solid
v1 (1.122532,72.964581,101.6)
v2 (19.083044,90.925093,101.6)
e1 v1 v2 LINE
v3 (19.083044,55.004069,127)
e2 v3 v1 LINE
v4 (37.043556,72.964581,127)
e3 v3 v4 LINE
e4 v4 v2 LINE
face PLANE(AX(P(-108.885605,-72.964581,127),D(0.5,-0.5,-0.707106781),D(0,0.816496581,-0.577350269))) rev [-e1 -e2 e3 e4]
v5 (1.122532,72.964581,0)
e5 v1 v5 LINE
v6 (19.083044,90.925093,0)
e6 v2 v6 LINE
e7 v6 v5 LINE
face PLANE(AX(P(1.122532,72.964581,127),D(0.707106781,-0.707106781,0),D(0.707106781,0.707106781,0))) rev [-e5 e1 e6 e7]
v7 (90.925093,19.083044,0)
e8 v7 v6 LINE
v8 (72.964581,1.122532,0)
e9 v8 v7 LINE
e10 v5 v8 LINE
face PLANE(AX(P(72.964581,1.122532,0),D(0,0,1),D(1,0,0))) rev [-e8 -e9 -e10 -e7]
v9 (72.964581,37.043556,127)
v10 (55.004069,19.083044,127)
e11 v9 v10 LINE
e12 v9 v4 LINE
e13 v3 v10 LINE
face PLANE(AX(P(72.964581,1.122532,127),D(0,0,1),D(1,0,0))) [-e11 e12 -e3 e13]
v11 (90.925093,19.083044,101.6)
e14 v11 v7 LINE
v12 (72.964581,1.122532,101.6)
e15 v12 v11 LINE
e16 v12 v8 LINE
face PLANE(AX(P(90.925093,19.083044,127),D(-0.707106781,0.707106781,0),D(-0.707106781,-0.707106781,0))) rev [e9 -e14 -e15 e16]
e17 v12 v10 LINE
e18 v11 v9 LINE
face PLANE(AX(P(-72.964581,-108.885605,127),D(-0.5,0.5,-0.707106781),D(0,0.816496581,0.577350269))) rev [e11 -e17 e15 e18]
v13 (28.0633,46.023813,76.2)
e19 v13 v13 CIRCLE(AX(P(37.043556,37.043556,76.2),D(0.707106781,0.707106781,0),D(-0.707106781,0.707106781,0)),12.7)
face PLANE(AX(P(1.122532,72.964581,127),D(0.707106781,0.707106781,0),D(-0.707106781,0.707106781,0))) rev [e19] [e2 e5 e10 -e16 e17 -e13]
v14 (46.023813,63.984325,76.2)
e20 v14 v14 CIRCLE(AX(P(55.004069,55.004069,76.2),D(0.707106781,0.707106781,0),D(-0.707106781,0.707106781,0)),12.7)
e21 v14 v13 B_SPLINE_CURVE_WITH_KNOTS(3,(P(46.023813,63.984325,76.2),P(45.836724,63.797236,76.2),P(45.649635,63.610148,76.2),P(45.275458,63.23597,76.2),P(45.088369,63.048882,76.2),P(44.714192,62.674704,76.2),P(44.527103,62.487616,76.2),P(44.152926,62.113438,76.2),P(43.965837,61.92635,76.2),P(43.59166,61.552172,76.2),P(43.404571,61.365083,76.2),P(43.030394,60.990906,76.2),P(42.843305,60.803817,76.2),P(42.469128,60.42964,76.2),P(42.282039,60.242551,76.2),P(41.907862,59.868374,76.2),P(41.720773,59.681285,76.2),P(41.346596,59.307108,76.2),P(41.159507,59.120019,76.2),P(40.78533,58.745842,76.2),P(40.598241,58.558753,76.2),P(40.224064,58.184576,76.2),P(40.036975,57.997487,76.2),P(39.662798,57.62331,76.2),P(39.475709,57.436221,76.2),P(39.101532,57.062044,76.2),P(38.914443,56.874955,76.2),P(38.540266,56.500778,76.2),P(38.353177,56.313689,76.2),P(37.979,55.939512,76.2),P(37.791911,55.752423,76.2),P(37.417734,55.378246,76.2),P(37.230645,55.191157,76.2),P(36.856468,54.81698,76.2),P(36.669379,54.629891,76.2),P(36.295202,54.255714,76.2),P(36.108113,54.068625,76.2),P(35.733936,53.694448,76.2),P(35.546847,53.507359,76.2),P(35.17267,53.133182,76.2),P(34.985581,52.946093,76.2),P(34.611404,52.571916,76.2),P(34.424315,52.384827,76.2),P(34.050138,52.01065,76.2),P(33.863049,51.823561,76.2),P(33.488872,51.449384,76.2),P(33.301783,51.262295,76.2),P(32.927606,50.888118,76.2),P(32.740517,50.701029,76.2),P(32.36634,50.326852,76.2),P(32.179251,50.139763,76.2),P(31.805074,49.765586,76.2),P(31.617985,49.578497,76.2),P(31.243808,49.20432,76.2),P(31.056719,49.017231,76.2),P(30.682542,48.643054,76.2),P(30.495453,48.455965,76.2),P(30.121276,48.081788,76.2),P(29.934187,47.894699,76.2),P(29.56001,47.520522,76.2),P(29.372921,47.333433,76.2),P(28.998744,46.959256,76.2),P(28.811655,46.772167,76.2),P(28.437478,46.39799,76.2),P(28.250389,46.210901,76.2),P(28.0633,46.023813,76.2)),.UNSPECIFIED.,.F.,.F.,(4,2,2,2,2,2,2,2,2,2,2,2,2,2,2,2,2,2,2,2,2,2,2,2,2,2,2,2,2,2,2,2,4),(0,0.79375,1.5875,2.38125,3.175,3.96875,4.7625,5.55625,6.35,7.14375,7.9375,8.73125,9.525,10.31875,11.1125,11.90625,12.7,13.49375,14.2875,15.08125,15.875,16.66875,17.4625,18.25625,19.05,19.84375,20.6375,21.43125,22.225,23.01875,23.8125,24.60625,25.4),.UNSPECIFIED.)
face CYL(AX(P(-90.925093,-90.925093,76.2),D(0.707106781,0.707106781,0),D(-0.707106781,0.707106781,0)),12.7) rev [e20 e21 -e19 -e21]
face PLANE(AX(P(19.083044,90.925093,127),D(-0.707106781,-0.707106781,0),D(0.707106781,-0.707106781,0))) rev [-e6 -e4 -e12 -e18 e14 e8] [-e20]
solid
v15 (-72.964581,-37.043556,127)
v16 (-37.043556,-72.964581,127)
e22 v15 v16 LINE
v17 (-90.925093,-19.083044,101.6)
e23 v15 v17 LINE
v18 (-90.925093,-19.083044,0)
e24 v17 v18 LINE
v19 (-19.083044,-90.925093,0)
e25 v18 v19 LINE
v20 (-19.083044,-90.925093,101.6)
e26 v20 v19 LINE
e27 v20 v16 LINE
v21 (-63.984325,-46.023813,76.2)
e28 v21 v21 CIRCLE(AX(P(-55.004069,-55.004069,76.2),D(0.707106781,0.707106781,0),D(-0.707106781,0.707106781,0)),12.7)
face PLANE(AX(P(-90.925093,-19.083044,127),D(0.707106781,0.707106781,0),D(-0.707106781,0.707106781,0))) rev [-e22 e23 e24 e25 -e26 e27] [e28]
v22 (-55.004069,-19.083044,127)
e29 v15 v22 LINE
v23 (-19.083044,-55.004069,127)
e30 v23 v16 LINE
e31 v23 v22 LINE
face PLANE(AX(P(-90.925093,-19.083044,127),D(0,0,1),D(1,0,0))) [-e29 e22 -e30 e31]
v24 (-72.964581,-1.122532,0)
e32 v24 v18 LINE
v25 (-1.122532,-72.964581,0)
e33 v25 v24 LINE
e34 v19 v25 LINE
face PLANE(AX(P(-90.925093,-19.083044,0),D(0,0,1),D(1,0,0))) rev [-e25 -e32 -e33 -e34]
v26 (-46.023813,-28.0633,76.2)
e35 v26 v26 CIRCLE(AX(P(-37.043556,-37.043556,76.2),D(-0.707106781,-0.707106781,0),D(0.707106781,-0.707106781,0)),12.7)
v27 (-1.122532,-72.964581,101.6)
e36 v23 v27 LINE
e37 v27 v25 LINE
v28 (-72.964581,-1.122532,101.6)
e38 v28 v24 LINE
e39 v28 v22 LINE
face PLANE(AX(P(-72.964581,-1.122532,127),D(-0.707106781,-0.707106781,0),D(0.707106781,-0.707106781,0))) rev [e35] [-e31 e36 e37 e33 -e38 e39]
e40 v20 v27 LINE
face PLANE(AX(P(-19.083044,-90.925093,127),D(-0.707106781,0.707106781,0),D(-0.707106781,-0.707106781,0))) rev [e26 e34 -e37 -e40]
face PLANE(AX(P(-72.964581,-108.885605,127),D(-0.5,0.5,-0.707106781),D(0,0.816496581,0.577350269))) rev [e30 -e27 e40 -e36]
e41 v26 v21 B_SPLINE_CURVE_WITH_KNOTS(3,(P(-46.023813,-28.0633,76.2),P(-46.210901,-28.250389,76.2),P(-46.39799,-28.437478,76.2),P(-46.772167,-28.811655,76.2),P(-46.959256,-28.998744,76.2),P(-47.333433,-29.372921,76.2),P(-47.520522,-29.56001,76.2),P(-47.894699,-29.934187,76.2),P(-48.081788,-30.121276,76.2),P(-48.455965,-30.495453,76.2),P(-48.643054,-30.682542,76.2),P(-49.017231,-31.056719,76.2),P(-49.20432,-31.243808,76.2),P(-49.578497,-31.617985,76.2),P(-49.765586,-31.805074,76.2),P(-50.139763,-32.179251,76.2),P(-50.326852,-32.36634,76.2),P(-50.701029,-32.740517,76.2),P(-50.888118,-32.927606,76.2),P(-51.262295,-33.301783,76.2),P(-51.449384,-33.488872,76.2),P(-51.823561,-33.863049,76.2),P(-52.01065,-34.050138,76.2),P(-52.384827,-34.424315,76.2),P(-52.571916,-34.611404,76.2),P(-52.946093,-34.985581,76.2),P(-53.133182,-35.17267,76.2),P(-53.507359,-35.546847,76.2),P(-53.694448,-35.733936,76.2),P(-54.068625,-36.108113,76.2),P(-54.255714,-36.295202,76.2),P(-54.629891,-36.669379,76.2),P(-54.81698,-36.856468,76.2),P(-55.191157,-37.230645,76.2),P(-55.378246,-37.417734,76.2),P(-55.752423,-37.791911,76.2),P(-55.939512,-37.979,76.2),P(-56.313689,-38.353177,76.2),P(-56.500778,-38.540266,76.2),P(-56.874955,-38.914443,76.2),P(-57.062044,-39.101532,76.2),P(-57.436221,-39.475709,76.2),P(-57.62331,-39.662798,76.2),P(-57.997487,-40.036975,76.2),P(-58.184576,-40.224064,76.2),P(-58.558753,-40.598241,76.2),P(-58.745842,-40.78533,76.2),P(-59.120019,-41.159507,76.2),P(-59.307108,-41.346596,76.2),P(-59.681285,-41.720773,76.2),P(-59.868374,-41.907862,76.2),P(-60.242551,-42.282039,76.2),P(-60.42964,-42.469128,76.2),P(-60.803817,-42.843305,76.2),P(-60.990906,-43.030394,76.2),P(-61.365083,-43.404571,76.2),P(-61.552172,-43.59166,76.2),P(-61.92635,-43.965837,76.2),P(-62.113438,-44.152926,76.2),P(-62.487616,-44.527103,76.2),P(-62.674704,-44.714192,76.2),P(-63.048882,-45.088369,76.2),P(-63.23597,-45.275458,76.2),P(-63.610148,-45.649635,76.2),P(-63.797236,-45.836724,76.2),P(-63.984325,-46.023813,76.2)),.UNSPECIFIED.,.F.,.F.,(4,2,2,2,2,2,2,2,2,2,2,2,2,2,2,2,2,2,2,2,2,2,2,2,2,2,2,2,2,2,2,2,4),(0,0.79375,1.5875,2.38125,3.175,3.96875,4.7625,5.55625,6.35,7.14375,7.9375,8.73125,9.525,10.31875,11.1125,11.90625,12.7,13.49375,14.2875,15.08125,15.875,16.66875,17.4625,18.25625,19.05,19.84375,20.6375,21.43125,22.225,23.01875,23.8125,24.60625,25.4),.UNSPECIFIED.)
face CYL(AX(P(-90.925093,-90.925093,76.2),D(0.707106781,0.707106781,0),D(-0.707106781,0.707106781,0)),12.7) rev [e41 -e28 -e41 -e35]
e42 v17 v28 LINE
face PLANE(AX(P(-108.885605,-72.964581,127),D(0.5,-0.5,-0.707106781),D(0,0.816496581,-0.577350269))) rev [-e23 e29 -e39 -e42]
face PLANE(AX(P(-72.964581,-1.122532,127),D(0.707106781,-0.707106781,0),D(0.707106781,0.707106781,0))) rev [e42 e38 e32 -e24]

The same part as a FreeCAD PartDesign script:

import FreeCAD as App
import Part
import Sketcher
Q = App.Units.Quantity

doc = App.newDocument("Part")
body = doc.addObject("PartDesign::Body", "Body")

# Sketch on XY plane
sketch1 = doc.addObject("Sketcher::SketchObject", "Sketch")
body.addObject(sketch1)
sketch1.AttachmentSupport = (doc.XY_Plane, [""])
sketch1.MapMode = "FlatFace"
sketch1.addGeometry(Part.LineSegment(App.Vector(-1.122532, -72.964581, 0), App.Vector(-72.964581, -1.122532, 0)), False)
sketch1.addGeometry(Part.LineSegment(App.Vector(-72.964581, -1.122532, 0), App.Vector(-90.925093, -19.083044, 0)), False)
sketch1.addGeometry(Part.LineSegment(App.Vector(-90.925093, -19.083044, 0), App.Vector(-19.083044, -90.925093, 0)), False)
sketch1.addGeometry(Part.LineSegment(App.Vector(-19.083044, -90.925093, 0), App.Vector(-1.122532, -72.964581, 0)), False)
sketch1.addConstraint(Sketcher.Constraint("Coincident", 0, 2, 1, 1))
sketch1.addConstraint(Sketcher.Constraint("Coincident", 1, 2, 2, 1))
sketch1.addConstraint(Sketcher.Constraint("Coincident", 2, 2, 3, 1))
sketch1.addConstraint(Sketcher.Constraint("Coincident", 3, 2, 0, 1))
sketch1.addConstraint(Sketcher.Constraint("Perpendicular", 0, 1))
sketch1.addConstraint(Sketcher.Constraint("Perpendicular", 1, 2))
sketch1.addConstraint(Sketcher.Constraint("Perpendicular", 2, 3))
sketch1.addConstraint(Sketcher.Constraint("Distance", 0, Q("4 in")))
sketch1.addConstraint(Sketcher.Constraint("Distance", 1, Q("1 in")))
sketch1.addConstraint(Sketcher.Constraint("Angle", 0, Q("135 deg")))
sketch1.addConstraint(Sketcher.Constraint("DistanceX", 0, 2, -1, 1, Q("72.964581 mm")))
sketch1.addConstraint(Sketcher.Constraint("DistanceY", 3, 2, -1, 1, Q("72.964581 mm")))
pad1 = doc.addObject("PartDesign::Pad", "Pad")
body.addObject(pad1)
pad1.Profile = sketch1
pad1.Length = Q("5 in")
body2 = doc.addObject("PartDesign::Body", "Body001")

# Sketch on XY plane
sketch2 = doc.addObject("Sketcher::SketchObject", "Sketch001")
body2.addObject(sketch2)
sketch2.AttachmentSupport = (doc.getObject("XY_Plane001"), [""])
sketch2.MapMode = "FlatFace"
sketch2.addGeometry(Part.LineSegment(App.Vector(1.122532, 72.964581, 0), App.Vector(72.964581, 1.122532, 0)), False)
sketch2.addGeometry(Part.LineSegment(App.Vector(72.964581, 1.122532, 0), App.Vector(90.925093, 19.083044, 0)), False)
sketch2.addGeometry(Part.LineSegment(App.Vector(90.925093, 19.083044, 0), App.Vector(19.083044, 90.925093, 0)), False)
sketch2.addGeometry(Part.LineSegment(App.Vector(19.083044, 90.925093, 0), App.Vector(1.122532, 72.964581, 0)), False)
sketch2.addConstraint(Sketcher.Constraint("Coincident", 0, 2, 1, 1))
sketch2.addConstraint(Sketcher.Constraint("Coincident", 1, 2, 2, 1))
sketch2.addConstraint(Sketcher.Constraint("Coincident", 2, 2, 3, 1))
sketch2.addConstraint(Sketcher.Constraint("Coincident", 3, 2, 0, 1))
sketch2.addConstraint(Sketcher.Constraint("Perpendicular", 0, 1))
sketch2.addConstraint(Sketcher.Constraint("Perpendicular", 1, 2))
sketch2.addConstraint(Sketcher.Constraint("Perpendicular", 2, 3))
sketch2.addConstraint(Sketcher.Constraint("Distance", 0, Q("4 in")))
sketch2.addConstraint(Sketcher.Constraint("Distance", 1, Q("1 in")))
sketch2.addConstraint(Sketcher.Constraint("Angle", 0, Q("-45 deg")))
sketch2.addConstraint(Sketcher.Constraint("DistanceX", -1, 1, 0, 2, Q("72.964581 mm")))
sketch2.addConstraint(Sketcher.Constraint("DistanceY", -1, 1, 3, 2, Q("72.964581 mm")))
pad2 = doc.addObject("PartDesign::Pad", "Pad001")
body2.addObject(pad2)
pad2.Profile = sketch2
pad2.Length = Q("5 in")
body3 = doc.addObject("PartDesign::Body", "Body002")
body3.AllowCompound = True

# Sketch on an angled plane
sketch3 = doc.addObject("Sketcher::SketchObject", "Sketch002")
body3.addObject(sketch3)
sketch3.Placement = App.Placement(App.Vector(55.004069, 55.004069, 0), App.Rotation(App.Vector(0, 0, -1), App.Vector(-0.707106781, 0.707106781, 0), App.Vector(0.707106781, 0.707106781, 0), "ZXY"))
sketch3.addGeometry(Part.Circle(App.Vector(-76.2, 0, 0), App.Vector(0, 0, 1), 12.7), False)
sketch3.addGeometry(Part.LineSegment(App.Vector(-101.6, -50.8, 0), App.Vector(-127, -25.4, 0)), False)
sketch3.addGeometry(Part.LineSegment(App.Vector(-127, -25.4, 0), App.Vector(-127, -50.8, 0)), False)
sketch3.addGeometry(Part.LineSegment(App.Vector(-127, -50.8, 0), App.Vector(-101.6, -50.8, 0)), False)
sketch3.addGeometry(Part.LineSegment(App.Vector(-127, 25.4, 0), App.Vector(-101.6, 50.8, 0)), False)
sketch3.addGeometry(Part.LineSegment(App.Vector(-101.6, 50.8, 0), App.Vector(-127, 50.8, 0)), False)
sketch3.addGeometry(Part.LineSegment(App.Vector(-127, 50.8, 0), App.Vector(-127, 25.4, 0)), False)
sketch3.addConstraint(Sketcher.Constraint("Coincident", 1, 2, 2, 1))
sketch3.addConstraint(Sketcher.Constraint("Coincident", 2, 2, 3, 1))
sketch3.addConstraint(Sketcher.Constraint("Coincident", 3, 2, 1, 1))
sketch3.addConstraint(Sketcher.Constraint("Coincident", 4, 2, 5, 1))
sketch3.addConstraint(Sketcher.Constraint("Coincident", 5, 2, 6, 1))
sketch3.addConstraint(Sketcher.Constraint("Coincident", 6, 2, 4, 1))
sketch3.addConstraint(Sketcher.Constraint("Vertical", 2))
sketch3.addConstraint(Sketcher.Constraint("Horizontal", 3))
sketch3.addConstraint(Sketcher.Constraint("Horizontal", 5))
sketch3.addConstraint(Sketcher.Constraint("Vertical", 6))
sketch3.addConstraint(Sketcher.Constraint("Symmetric", 3, 2, 4, 2, -1))
sketch3.addConstraint(Sketcher.Constraint("Symmetric", 1, 2, 6, 2, -1))
sketch3.addConstraint(Sketcher.Constraint("PointOnObject", 0, 3, -1))
sketch3.addConstraint(Sketcher.Constraint("Perpendicular", 1, 4))
sketch3.addConstraint(Sketcher.Constraint("Diameter", 0, Q("1 in")))
sketch3.addConstraint(Sketcher.Constraint("DistanceX", 3, 1, 3, 2, Q("1 in")))
sketch3.addConstraint(Sketcher.Constraint("DistanceX", 0, 3, -1, 1, Q("3 in")))
sketch3.addConstraint(Sketcher.Constraint("DistanceX", 1, 2, -1, 1, Q("5 in")))
sketch3.addConstraint(Sketcher.Constraint("DistanceY", 1, 2, -1, 1, Q("1 in")))
pad3 = doc.addObject("PartDesign::Pad", "Pad002")
body3.addObject(pad3)
pad3.Profile = sketch3
pad3.Length = 243.321358
pad3.Reversed = True
doc.recompute()

body4 = doc.addObject("PartDesign::Body", "Body003")
body4.BaseFeature = body3
boolean = doc.addObject("PartDesign::Boolean", "Boolean")
body.addObject(boolean)
boolean.Type = "Cut"
boolean.addObjects([body4])
doc.recompute()

boolean2 = doc.addObject("PartDesign::Boolean", "Boolean001")
body2.addObject(boolean2)
boolean2.Type = "Cut"
boolean2.addObjects([body3])

doc.recompute()
